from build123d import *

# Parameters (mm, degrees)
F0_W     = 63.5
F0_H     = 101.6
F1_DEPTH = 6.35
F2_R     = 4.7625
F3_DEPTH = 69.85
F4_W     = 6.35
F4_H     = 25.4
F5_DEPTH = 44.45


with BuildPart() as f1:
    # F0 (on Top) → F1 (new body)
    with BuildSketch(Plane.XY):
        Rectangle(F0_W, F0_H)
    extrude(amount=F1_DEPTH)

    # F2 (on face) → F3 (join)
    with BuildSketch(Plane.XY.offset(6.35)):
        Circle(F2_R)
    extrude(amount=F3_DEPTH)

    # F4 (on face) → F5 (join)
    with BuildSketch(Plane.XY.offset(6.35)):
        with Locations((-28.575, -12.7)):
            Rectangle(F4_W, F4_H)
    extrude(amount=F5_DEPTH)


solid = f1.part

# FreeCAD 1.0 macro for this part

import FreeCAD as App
import Part
import Sketcher
Q = App.Units.Quantity

doc = App.newDocument("Part")
body = doc.addObject("PartDesign::Body", "Body")

# Sketch on XY plane
sketch1 = body.newObject("Sketcher::SketchObject", "Sketch")
sketch1.AttachmentSupport = (doc.getObject("XY_Plane"), [""])
sketch1.MapMode = "FlatFace"
sketch1.addGeometry([
    Part.LineSegment(App.Vector(-32, 51, 0), App.Vector(-32, -51, 0)),
    Part.LineSegment(App.Vector(-32, -51, 0), App.Vector(32, -51, 0)),
    Part.LineSegment(App.Vector(32, -51, 0), App.Vector(32, 51, 0)),
    Part.LineSegment(App.Vector(32, 51, 0), App.Vector(-32, 51, 0)),
], False)
sketch1.addConstraint([
    Sketcher.Constraint("Coincident", 0, 2, 1, 1),
    Sketcher.Constraint("Coincident", 1, 2, 2, 1),
    Sketcher.Constraint("Coincident", 2, 2, 3, 1),
    Sketcher.Constraint("Coincident", 3, 2, 0, 1),
    Sketcher.Constraint("Vertical", 0),
    Sketcher.Constraint("Horizontal", 1),
    Sketcher.Constraint("Vertical", 2),
    Sketcher.Constraint("Horizontal", 3),
    Sketcher.Constraint("Symmetric", 0, 2, 2, 2, -1, 1),
    Sketcher.Constraint("DistanceY", 0, 2, 0, 1, Q("4 in")),
    Sketcher.Constraint("DistanceX", 1, 1, 1, 2, Q("2.5 in")),
])
pad1 = body.newObject("PartDesign::Pad", "Pad")
pad1.Profile = sketch1
pad1.Length = Q("0.25 in")

# Sketch on XY plane
sketch2 = body.newObject("Sketcher::SketchObject", "Sketch001")
sketch2.AttachmentSupport = (doc.getObject("XY_Plane"), [""])
sketch2.MapMode = "FlatFace"
sketch2.AttachmentOffset = App.Placement(App.Vector(0, 0, 0.25 * 25.4), App.Rotation())
sketch2.addGeometry(Part.Circle(App.Vector(0, 0, 0), App.Vector(0, 0, 1), 4.8), False)
sketch2.addConstraint([
    Sketcher.Constraint("Coincident", 0, 3, -1, 1),
    Sketcher.Constraint("Diameter", 0, Q("0.375 in")),
])
pad2 = body.newObject("PartDesign::Pad", "Pad001")
pad2.Profile = sketch2
pad2.Length = Q("2.75 in")

# Sketch on XY plane
sketch3 = body.newObject("Sketcher::SketchObject", "Sketch002")
sketch3.AttachmentSupport = (doc.getObject("XY_Plane"), [""])
sketch3.MapMode = "FlatFace"
sketch3.AttachmentOffset = App.Placement(App.Vector(0, 0, 0.25 * 25.4), App.Rotation())
sketch3.addGeometry([
    Part.LineSegment(App.Vector(-32, 0, 0), App.Vector(-32, -25, 0)),
    Part.LineSegment(App.Vector(-32, -25, 0), App.Vector(-25, -25, 0)),
    Part.LineSegment(App.Vector(-25, -25, 0), App.Vector(-25, 0, 0)),
    Part.LineSegment(App.Vector(-25, 0, 0), App.Vector(-32, 0, 0)),
], False)
sketch3.addConstraint([
    Sketcher.Constraint("Coincident", 0, 2, 1, 1),
    Sketcher.Constraint("Coincident", 1, 2, 2, 1),
    Sketcher.Constraint("Coincident", 2, 2, 3, 1),
    Sketcher.Constraint("Coincident", 3, 2, 0, 1),
    Sketcher.Constraint("Vertical", 0),
    Sketcher.Constraint("Horizontal", 1),
    Sketcher.Constraint("Vertical", 2),
    Sketcher.Constraint("Horizontal", 3),
    Sketcher.Constraint("PointOnObject", 2, 2, -1),
    Sketcher.Constraint("DistanceY", 0, 2, 0, 1, Q("1 in")),
    Sketcher.Constraint("DistanceX", 1, 2, -1, 1, Q("1 in")),
    Sketcher.Constraint("DistanceX", 1, 1, 1, 2, Q("0.25 in")),
])
pad3 = body.newObject("PartDesign::Pad", "Pad002")
pad3.Profile = sketch3
pad3.Length = Q("1.75 in")

doc.recompute()
